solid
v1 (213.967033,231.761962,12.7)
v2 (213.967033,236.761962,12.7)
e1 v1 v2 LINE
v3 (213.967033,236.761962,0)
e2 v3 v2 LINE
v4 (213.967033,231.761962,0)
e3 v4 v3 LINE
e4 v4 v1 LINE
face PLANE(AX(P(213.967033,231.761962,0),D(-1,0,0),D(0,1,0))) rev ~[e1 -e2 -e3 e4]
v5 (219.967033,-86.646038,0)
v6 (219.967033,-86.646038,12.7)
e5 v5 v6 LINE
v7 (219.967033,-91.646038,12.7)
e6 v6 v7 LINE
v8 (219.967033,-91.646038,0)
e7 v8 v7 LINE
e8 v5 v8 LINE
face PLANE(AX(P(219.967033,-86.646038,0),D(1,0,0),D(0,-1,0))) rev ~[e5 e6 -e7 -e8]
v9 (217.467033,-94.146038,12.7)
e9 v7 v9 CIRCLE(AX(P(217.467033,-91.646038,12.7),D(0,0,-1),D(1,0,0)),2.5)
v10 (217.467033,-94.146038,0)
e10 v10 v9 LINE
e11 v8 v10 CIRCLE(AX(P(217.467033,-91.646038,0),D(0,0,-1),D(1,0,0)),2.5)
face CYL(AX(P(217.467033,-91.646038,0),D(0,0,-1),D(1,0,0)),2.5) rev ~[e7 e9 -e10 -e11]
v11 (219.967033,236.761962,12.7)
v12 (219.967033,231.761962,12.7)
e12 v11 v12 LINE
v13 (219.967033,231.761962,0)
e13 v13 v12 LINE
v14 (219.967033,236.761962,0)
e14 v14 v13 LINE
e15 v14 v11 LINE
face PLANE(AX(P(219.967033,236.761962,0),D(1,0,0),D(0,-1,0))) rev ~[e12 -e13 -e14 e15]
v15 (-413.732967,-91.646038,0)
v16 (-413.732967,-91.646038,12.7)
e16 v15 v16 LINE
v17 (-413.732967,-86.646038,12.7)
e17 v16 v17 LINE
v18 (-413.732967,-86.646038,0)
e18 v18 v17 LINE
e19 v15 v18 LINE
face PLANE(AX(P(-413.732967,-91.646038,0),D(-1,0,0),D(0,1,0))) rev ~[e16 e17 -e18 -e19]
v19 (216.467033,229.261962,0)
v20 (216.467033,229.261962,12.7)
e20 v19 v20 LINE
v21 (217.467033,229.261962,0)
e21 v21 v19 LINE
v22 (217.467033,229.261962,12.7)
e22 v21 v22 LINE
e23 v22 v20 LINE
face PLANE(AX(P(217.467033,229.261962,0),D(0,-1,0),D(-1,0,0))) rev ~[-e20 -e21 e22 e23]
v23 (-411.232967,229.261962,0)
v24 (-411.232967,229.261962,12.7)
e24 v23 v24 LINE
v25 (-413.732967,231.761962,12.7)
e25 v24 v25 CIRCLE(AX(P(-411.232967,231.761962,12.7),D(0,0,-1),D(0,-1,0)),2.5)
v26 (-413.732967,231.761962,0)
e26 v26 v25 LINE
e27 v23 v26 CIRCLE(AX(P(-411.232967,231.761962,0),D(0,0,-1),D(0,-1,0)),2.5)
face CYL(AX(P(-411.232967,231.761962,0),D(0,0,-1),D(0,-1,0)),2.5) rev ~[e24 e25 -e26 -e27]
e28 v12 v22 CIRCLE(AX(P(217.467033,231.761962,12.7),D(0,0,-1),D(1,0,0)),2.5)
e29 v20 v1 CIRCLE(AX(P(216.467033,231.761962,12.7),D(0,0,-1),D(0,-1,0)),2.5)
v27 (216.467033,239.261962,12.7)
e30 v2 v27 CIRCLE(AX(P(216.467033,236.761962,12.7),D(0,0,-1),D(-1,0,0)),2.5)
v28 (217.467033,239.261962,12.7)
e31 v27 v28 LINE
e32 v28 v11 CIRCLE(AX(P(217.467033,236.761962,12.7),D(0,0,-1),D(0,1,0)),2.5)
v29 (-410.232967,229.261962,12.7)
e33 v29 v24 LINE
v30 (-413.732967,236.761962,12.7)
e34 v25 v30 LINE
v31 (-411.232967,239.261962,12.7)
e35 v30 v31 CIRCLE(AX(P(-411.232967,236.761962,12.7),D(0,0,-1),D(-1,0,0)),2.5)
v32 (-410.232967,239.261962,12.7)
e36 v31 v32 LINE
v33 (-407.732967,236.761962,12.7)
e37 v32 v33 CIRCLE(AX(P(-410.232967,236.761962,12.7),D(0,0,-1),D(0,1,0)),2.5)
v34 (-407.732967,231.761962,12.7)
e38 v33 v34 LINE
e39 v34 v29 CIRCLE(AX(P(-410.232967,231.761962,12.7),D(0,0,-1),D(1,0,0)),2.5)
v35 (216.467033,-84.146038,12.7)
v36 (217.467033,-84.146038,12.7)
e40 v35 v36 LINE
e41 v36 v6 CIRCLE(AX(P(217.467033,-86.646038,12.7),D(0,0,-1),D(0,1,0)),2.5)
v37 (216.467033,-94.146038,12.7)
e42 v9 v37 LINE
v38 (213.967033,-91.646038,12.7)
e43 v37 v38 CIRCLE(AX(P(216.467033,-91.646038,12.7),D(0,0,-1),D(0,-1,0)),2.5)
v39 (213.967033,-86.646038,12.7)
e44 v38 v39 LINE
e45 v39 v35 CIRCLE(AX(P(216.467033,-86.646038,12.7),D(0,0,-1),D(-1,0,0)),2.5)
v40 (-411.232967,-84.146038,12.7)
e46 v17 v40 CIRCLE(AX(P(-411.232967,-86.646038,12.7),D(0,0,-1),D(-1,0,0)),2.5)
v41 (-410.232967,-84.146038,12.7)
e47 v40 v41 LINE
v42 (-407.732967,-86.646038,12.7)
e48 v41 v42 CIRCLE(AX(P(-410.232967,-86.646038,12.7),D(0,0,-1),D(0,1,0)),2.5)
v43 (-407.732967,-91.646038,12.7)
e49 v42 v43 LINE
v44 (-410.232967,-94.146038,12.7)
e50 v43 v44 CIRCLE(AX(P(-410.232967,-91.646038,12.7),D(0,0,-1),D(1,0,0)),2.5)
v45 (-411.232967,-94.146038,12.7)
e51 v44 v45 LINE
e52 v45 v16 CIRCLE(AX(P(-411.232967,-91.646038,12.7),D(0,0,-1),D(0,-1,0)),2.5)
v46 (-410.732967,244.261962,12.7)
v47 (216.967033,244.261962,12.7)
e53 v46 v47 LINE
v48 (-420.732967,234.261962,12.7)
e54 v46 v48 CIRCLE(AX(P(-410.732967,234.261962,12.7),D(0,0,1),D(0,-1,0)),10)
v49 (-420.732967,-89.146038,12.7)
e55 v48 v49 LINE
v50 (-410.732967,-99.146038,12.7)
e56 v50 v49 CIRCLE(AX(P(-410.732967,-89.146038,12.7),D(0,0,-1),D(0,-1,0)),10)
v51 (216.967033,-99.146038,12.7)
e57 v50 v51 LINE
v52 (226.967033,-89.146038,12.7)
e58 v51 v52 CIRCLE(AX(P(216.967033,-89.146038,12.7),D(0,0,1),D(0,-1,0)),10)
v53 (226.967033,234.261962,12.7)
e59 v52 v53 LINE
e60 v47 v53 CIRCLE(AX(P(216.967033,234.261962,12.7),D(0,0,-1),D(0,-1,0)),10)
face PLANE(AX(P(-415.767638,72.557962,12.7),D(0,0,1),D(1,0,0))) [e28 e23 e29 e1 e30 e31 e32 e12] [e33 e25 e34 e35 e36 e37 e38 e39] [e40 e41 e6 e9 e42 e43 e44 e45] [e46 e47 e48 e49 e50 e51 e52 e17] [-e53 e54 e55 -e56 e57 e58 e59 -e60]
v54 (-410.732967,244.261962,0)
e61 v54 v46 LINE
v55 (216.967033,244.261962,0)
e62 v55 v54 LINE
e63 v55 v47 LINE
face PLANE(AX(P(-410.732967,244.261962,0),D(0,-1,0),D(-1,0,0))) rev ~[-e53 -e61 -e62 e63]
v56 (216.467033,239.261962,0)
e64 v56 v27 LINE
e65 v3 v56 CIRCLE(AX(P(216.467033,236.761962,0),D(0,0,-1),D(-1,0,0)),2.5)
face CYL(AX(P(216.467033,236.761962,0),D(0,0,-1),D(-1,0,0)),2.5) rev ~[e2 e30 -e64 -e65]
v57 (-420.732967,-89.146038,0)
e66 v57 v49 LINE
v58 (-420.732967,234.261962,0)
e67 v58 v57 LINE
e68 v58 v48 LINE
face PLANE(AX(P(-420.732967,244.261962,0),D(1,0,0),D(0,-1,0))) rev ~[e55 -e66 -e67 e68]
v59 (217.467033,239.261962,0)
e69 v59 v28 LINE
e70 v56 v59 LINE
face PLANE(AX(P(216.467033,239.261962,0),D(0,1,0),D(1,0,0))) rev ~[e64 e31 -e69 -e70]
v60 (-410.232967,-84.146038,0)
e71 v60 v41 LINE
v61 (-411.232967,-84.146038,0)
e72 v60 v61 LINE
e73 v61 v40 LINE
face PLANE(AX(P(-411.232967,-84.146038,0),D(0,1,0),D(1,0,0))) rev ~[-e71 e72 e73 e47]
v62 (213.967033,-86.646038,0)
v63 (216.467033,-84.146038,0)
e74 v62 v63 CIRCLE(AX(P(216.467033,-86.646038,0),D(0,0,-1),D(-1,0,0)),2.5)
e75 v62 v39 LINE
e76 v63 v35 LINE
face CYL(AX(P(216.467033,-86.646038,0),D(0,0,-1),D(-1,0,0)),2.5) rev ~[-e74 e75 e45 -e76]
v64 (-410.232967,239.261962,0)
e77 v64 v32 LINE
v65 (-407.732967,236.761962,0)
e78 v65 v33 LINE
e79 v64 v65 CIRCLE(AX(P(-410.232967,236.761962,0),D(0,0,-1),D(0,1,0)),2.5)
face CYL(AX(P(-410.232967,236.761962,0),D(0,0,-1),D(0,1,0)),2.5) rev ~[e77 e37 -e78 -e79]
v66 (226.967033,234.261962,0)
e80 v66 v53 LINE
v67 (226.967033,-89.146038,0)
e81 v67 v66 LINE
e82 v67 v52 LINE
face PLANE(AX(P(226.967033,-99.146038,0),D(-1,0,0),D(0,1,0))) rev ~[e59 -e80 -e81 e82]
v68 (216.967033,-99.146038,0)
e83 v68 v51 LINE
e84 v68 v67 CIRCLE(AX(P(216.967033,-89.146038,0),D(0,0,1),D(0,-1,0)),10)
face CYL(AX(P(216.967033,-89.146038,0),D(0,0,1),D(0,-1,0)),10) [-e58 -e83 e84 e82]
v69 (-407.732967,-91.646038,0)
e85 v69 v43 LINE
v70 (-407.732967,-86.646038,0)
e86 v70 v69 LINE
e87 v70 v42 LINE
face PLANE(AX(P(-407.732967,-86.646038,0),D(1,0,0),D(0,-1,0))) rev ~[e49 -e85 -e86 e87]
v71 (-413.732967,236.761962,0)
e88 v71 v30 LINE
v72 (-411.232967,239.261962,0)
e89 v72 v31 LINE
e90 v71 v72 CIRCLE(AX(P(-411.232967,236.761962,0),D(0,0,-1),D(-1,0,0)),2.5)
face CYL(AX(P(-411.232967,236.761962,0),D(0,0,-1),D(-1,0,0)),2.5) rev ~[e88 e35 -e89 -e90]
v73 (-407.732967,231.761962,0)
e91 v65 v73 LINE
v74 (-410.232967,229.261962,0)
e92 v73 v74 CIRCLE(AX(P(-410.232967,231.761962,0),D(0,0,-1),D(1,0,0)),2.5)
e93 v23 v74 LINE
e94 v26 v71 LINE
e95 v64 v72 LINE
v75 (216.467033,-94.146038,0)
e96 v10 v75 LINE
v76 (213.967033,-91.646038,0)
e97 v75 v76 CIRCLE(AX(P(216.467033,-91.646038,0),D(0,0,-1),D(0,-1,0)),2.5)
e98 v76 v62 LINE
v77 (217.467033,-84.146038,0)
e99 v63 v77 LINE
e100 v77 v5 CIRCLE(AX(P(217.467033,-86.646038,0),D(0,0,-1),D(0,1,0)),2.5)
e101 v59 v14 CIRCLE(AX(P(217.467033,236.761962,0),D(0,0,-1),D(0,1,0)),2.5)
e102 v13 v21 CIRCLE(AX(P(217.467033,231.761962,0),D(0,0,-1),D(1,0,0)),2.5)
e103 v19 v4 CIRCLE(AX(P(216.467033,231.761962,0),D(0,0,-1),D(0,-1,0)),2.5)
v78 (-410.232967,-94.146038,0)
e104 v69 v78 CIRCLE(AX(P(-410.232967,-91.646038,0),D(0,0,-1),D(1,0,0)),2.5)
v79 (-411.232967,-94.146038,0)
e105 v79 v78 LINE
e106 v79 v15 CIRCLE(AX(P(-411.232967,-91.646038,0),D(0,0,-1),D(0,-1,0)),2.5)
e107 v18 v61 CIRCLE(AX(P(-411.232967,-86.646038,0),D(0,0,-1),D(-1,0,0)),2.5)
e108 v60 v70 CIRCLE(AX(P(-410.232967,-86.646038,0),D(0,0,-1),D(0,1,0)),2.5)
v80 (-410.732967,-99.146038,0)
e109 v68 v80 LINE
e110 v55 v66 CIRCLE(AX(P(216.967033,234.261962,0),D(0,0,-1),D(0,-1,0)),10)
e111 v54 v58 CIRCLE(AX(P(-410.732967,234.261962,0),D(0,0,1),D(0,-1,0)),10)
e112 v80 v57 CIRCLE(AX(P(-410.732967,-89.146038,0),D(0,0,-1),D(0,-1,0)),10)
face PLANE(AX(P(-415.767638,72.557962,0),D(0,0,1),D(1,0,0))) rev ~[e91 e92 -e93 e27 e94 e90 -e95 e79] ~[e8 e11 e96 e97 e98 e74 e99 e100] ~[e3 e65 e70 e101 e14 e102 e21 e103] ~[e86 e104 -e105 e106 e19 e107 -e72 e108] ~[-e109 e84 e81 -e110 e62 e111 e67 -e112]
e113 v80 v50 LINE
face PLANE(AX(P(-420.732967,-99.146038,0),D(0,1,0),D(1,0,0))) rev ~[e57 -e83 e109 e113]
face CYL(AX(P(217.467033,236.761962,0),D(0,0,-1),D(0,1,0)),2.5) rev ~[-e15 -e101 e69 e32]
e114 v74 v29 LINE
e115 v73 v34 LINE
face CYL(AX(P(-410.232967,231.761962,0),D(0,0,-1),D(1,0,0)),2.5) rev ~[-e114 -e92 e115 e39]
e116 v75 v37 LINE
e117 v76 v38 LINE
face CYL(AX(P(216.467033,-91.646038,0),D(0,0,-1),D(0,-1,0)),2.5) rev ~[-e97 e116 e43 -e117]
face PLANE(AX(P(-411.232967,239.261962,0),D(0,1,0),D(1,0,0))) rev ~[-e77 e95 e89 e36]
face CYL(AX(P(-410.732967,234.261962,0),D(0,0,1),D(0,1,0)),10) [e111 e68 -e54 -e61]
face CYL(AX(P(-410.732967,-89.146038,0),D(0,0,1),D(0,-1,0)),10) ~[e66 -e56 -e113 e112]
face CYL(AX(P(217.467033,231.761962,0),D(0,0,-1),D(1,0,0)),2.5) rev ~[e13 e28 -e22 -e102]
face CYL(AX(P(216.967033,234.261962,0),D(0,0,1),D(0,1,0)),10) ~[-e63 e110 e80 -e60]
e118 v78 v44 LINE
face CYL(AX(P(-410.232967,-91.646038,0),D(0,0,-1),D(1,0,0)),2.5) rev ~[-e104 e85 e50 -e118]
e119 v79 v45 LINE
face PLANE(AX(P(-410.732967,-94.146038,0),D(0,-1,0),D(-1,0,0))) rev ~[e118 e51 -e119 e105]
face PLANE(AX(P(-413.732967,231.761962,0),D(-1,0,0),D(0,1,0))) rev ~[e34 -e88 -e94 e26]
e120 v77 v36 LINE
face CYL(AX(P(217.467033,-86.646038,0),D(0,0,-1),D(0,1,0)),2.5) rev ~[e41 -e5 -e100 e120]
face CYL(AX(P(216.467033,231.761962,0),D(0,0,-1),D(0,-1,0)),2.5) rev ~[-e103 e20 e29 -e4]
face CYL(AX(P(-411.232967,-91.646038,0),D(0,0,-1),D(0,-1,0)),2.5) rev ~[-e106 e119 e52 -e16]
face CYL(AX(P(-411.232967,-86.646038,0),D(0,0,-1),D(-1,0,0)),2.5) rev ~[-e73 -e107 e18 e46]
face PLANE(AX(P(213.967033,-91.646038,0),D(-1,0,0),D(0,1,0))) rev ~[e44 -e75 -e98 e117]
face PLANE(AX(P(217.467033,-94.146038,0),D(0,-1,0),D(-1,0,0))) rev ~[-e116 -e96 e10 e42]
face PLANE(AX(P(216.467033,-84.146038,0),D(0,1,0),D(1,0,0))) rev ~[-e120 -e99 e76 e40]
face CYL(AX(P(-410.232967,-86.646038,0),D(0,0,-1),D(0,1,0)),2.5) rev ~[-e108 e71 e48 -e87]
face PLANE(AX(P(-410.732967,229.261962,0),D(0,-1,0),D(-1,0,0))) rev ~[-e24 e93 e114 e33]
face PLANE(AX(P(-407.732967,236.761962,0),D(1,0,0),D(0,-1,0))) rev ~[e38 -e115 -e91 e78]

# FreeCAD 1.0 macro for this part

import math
import FreeCAD as App
import Part
import Sketcher
Q = App.Units.Quantity


def edges_at(feature, points):
    """Names of the edges that pass closest to the given points."""
    edges = feature.Shape.Edges
    near = lambda p: min(range(len(edges)), key=lambda i: edges[i].distToShape(Part.Vertex(*p))[0])
    return sorted({f"Edge{near(p) + 1}" for p in points})


def add_polygon(sketch, points):
    """Adds a closed chain of lines whose ends are joined by coincident constraints."""
    first, n = sketch.GeometryCount, len(points)
    for a, b in zip(points, points[1:] + points[:1]):
        sketch.addGeometry(Part.LineSegment(App.Vector(*a, 0), App.Vector(*b, 0)), False)
    for i in range(n):
        sketch.addConstraint(Sketcher.Constraint("Coincident", first + i, 2, first + (i + 1) % n, 1))

doc = App.newDocument("Part")
body = doc.addObject("PartDesign::Body", "Body")

sketch1 = doc.addObject("Sketcher::SketchObject", "Sketch")
body.addObject(sketch1)
sketch1.AttachmentSupport = (doc.XY_Plane, [""])
sketch1.MapMode = "FlatFace"
add_polygon(sketch1, [(227, 244.3), (-420.7, 244.3), (-420.7, -99.1), (227, -99.1)])
sketch1.addGeometry(Part.ArcOfCircle(Part.Circle(App.Vector(-410.2, 236.8, 0), App.Vector(0, 0, 1), 2.5), math.radians(0), math.radians(90)), False)
sketch1.addGeometry(Part.LineSegment(App.Vector(-407.7, 236.8, 0), App.Vector(-407.7, 231.8, 0)), False)
sketch1.addGeometry(Part.ArcOfCircle(Part.Circle(App.Vector(-410.2, 231.8, 0), App.Vector(0, 0, 1), 2.5), math.radians(-90), math.radians(0)), False)
sketch1.addGeometry(Part.LineSegment(App.Vector(-410.2, 229.3, 0), App.Vector(-411.2, 229.3, 0)), False)
sketch1.addGeometry(Part.ArcOfCircle(Part.Circle(App.Vector(-411.2, 231.8, 0), App.Vector(0, 0, 1), 2.5), math.radians(180), math.radians(270)), False)
sketch1.addGeometry(Part.LineSegment(App.Vector(-413.7, 231.8, 0), App.Vector(-413.7, 236.8, 0)), False)
sketch1.addGeometry(Part.ArcOfCircle(Part.Circle(App.Vector(-411.2, 236.8, 0), App.Vector(0, 0, 1), 2.5), math.radians(90), math.radians(180)), False)
sketch1.addGeometry(Part.LineSegment(App.Vector(-411.2, 239.3, 0), App.Vector(-410.2, 239.3, 0)), False)
sketch1.addGeometry(Part.LineSegment(App.Vector(-410.2, -94.1, 0), App.Vector(-411.2, -94.1, 0)), False)
sketch1.addGeometry(Part.ArcOfCircle(Part.Circle(App.Vector(-411.2, -91.6, 0), App.Vector(0, 0, 1), 2.5), math.radians(180), math.radians(270)), False)
sketch1.addGeometry(Part.LineSegment(App.Vector(-413.7, -91.6, 0), App.Vector(-413.7, -86.6, 0)), False)
sketch1.addGeometry(Part.ArcOfCircle(Part.Circle(App.Vector(-411.2, -86.6, 0), App.Vector(0, 0, 1), 2.5), math.radians(90), math.radians(180)), False)
sketch1.addGeometry(Part.LineSegment(App.Vector(-411.2, -84.1, 0), App.Vector(-410.2, -84.1, 0)), False)
sketch1.addGeometry(Part.ArcOfCircle(Part.Circle(App.Vector(-410.2, -86.6, 0), App.Vector(0, 0, 1), 2.5), math.radians(0), math.radians(90)), False)
sketch1.addGeometry(Part.LineSegment(App.Vector(-407.7, -86.6, 0), App.Vector(-407.7, -91.6, 0)), False)
sketch1.addGeometry(Part.ArcOfCircle(Part.Circle(App.Vector(-410.2, -91.6, 0), App.Vector(0, 0, 1), 2.5), math.radians(-90), math.radians(0)), False)
sketch1.addGeometry(Part.LineSegment(App.Vector(220, -86.6, 0), App.Vector(220, -91.6, 0)), False)
sketch1.addGeometry(Part.ArcOfCircle(Part.Circle(App.Vector(217.5, -91.6, 0), App.Vector(0, 0, 1), 2.5), math.radians(-90), math.radians(0)), False)
sketch1.addGeometry(Part.LineSegment(App.Vector(217.5, -94.1, 0), App.Vector(216.5, -94.1, 0)), False)
sketch1.addGeometry(Part.ArcOfCircle(Part.Circle(App.Vector(216.5, -91.6, 0), App.Vector(0, 0, 1), 2.5), math.radians(180), math.radians(270)), False)
sketch1.addGeometry(Part.LineSegment(App.Vector(214, -91.6, 0), App.Vector(214, -86.6, 0)), False)
sketch1.addGeometry(Part.ArcOfCircle(Part.Circle(App.Vector(216.5, -86.6, 0), App.Vector(0, 0, 1), 2.5), math.radians(90), math.radians(180)), False)
sketch1.addGeometry(Part.LineSegment(App.Vector(216.5, -84.1, 0), App.Vector(217.5, -84.1, 0)), False)
sketch1.addGeometry(Part.ArcOfCircle(Part.Circle(App.Vector(217.5, -86.6, 0), App.Vector(0, 0, 1), 2.5), math.radians(0), math.radians(90)), False)
sketch1.addGeometry(Part.LineSegment(App.Vector(220, 236.8, 0), App.Vector(220, 231.8, 0)), False)
sketch1.addGeometry(Part.ArcOfCircle(Part.Circle(App.Vector(217.5, 231.8, 0), App.Vector(0, 0, 1), 2.5), math.radians(-90), math.radians(0)), False)
sketch1.addGeometry(Part.LineSegment(App.Vector(217.5, 229.3, 0), App.Vector(216.5, 229.3, 0)), False)
sketch1.addGeometry(Part.ArcOfCircle(Part.Circle(App.Vector(216.5, 231.8, 0), App.Vector(0, 0, 1), 2.5), math.radians(180), math.radians(270)), False)
sketch1.addGeometry(Part.LineSegment(App.Vector(214, 231.8, 0), App.Vector(214, 236.8, 0)), False)
sketch1.addGeometry(Part.ArcOfCircle(Part.Circle(App.Vector(216.5, 236.8, 0), App.Vector(0, 0, 1), 2.5), math.radians(90), math.radians(180)), False)
sketch1.addGeometry(Part.LineSegment(App.Vector(216.5, 239.3, 0), App.Vector(217.5, 239.3, 0)), False)
sketch1.addGeometry(Part.ArcOfCircle(Part.Circle(App.Vector(217.5, 236.8, 0), App.Vector(0, 0, 1), 2.5), math.radians(0), math.radians(90)), False)
sketch1.addConstraint(Sketcher.Constraint("Tangent", 4, 1, 5, 1))
sketch1.addConstraint(Sketcher.Constraint("Tangent", 5, 2, 6, 2))
sketch1.addConstraint(Sketcher.Constraint("Tangent", 6, 1, 7, 1))
sketch1.addConstraint(Sketcher.Constraint("Tangent", 7, 2, 8, 2))
sketch1.addConstraint(Sketcher.Constraint("Tangent", 8, 1, 9, 1))
sketch1.addConstraint(Sketcher.Constraint("Tangent", 9, 2, 10, 2))
sketch1.addConstraint(Sketcher.Constraint("Tangent", 10, 1, 11, 1))
sketch1.addConstraint(Sketcher.Constraint("Tangent", 11, 2, 4, 2))
sketch1.addConstraint(Sketcher.Constraint("Tangent", 12, 2, 13, 2))
sketch1.addConstraint(Sketcher.Constraint("Tangent", 13, 1, 14, 1))
sketch1.addConstraint(Sketcher.Constraint("Tangent", 14, 2, 15, 2))
sketch1.addConstraint(Sketcher.Constraint("Tangent", 15, 1, 16, 1))
sketch1.addConstraint(Sketcher.Constraint("Tangent", 16, 2, 17, 2))
sketch1.addConstraint(Sketcher.Constraint("Tangent", 17, 1, 18, 1))
sketch1.addConstraint(Sketcher.Constraint("Tangent", 18, 2, 19, 2))
sketch1.addConstraint(Sketcher.Constraint("Tangent", 19, 1, 12, 1))
sketch1.addConstraint(Sketcher.Constraint("Tangent", 20, 2, 21, 2))
sketch1.addConstraint(Sketcher.Constraint("Tangent", 21, 1, 22, 1))
sketch1.addConstraint(Sketcher.Constraint("Tangent", 22, 2, 23, 2))
sketch1.addConstraint(Sketcher.Constraint("Tangent", 23, 1, 24, 1))
sketch1.addConstraint(Sketcher.Constraint("Tangent", 24, 2, 25, 2))
sketch1.addConstraint(Sketcher.Constraint("Tangent", 25, 1, 26, 1))
sketch1.addConstraint(Sketcher.Constraint("Tangent", 26, 2, 27, 2))
sketch1.addConstraint(Sketcher.Constraint("Tangent", 27, 1, 20, 1))
sketch1.addConstraint(Sketcher.Constraint("Tangent", 28, 2, 29, 2))
sketch1.addConstraint(Sketcher.Constraint("Tangent", 29, 1, 30, 1))
sketch1.addConstraint(Sketcher.Constraint("Tangent", 30, 2, 31, 2))
sketch1.addConstraint(Sketcher.Constraint("Tangent", 31, 1, 32, 1))
sketch1.addConstraint(Sketcher.Constraint("Tangent", 32, 2, 33, 2))
sketch1.addConstraint(Sketcher.Constraint("Tangent", 33, 1, 34, 1))
sketch1.addConstraint(Sketcher.Constraint("Tangent", 34, 2, 35, 2))
sketch1.addConstraint(Sketcher.Constraint("Tangent", 35, 1, 28, 1))
sketch1.addConstraint(Sketcher.Constraint("Horizontal", 0))
sketch1.addConstraint(Sketcher.Constraint("Vertical", 1))
sketch1.addConstraint(Sketcher.Constraint("Horizontal", 2))
sketch1.addConstraint(Sketcher.Constraint("Vertical", 3))
sketch1.addConstraint(Sketcher.Constraint("Vertical", 5))
sketch1.addConstraint(Sketcher.Constraint("Horizontal", 7))
sketch1.addConstraint(Sketcher.Constraint("Vertical", 9))
sketch1.addConstraint(Sketcher.Constraint("Horizontal", 11))
sketch1.addConstraint(Sketcher.Constraint("Horizontal", 12))
sketch1.addConstraint(Sketcher.Constraint("Vertical", 14))
sketch1.addConstraint(Sketcher.Constraint("Horizontal", 16))
sketch1.addConstraint(Sketcher.Constraint("Vertical", 18))
sketch1.addConstraint(Sketcher.Constraint("Vertical", 20))
sketch1.addConstraint(Sketcher.Constraint("Horizontal", 22))
sketch1.addConstraint(Sketcher.Constraint("Vertical", 24))
sketch1.addConstraint(Sketcher.Constraint("Horizontal", 26))
sketch1.addConstraint(Sketcher.Constraint("Vertical", 28))
sketch1.addConstraint(Sketcher.Constraint("Horizontal", 30))
sketch1.addConstraint(Sketcher.Constraint("Vertical", 32))
sketch1.addConstraint(Sketcher.Constraint("Horizontal", 34))
sketch1.addConstraint(Sketcher.Constraint("Equal", 4, 6))
sketch1.addConstraint(Sketcher.Constraint("Equal", 6, 8))
sketch1.addConstraint(Sketcher.Constraint("Equal", 8, 10))
sketch1.addConstraint(Sketcher.Constraint("Equal", 10, 13))
sketch1.addConstraint(Sketcher.Constraint("Equal", 13, 15))
sketch1.addConstraint(Sketcher.Constraint("Equal", 15, 17))
sketch1.addConstraint(Sketcher.Constraint("Equal", 17, 19))
sketch1.addConstraint(Sketcher.Constraint("Equal", 19, 21))
sketch1.addConstraint(Sketcher.Constraint("Equal", 21, 23))
sketch1.addConstraint(Sketcher.Constraint("Equal", 23, 25))
sketch1.addConstraint(Sketcher.Constraint("Equal", 25, 27))
sketch1.addConstraint(Sketcher.Constraint("Equal", 27, 29))
sketch1.addConstraint(Sketcher.Constraint("Equal", 29, 31))
sketch1.addConstraint(Sketcher.Constraint("Equal", 31, 33))
sketch1.addConstraint(Sketcher.Constraint("Equal", 33, 35))
sketch1.addConstraint(Sketcher.Constraint("Horizontal", 19, 3, 21, 3))
sketch1.addConstraint(Sketcher.Constraint("Horizontal", 17, 3, 25, 3))
sketch1.addConstraint(Sketcher.Constraint("Horizontal", 8, 3, 29, 3))
sketch1.addConstraint(Sketcher.Constraint("Horizontal", 10, 3, 33, 3))
sketch1.addConstraint(Sketcher.Constraint("Vertical", 10, 3, 13, 3))
sketch1.addConstraint(Sketcher.Constraint("Vertical", 6, 3, 17, 3))
sketch1.addConstraint(Sketcher.Constraint("Vertical", 27, 3, 29, 3))
sketch1.addConstraint(Sketcher.Constraint("Vertical", 25, 3, 31, 3))
sketch1.addConstraint(Sketcher.Constraint("Equal", 16, 22))
sketch1.addConstraint(Sketcher.Constraint("Equal", 9, 14))
sketch1.addConstraint(Sketcher.Constraint("Radius", 4, Q("2.5 mm")))
sketch1.addConstraint(Sketcher.Constraint("DistanceX", 7, 2, 7, 1, Q("1 mm")))
sketch1.addConstraint(Sketcher.Constraint("DistanceY", 5, 2, 5, 1, Q("5 mm")))
sketch1.addConstraint(Sketcher.Constraint("DistanceX", 0, 2, 0, 1, Q("647.7 mm")))
sketch1.addConstraint(Sketcher.Constraint("DistanceX", 0, 2, 4, 1, Q("13 mm")))
sketch1.addConstraint(Sketcher.Constraint("DistanceY", 1, 2, 12, 2, Q("5 mm")))
sketch1.addConstraint(Sketcher.Constraint("DistanceX", 20, 2, 2, 2, Q("7 mm")))
sketch1.addConstraint(Sketcher.Constraint("DistanceY", 10, 3, 0, 2, Q("7.5 mm")))
sketch1.addConstraint(Sketcher.Constraint("DistanceY", 1, 2, 1, 1, Q("343.408 mm")))
sketch1.addConstraint(Sketcher.Constraint("DistanceY", -1, 1, 4, 3, Q("236.761962 mm")))
sketch1.addConstraint(Sketcher.Constraint("DistanceX", 4, 3, -1, 1, Q("410.232967 mm")))
pad1 = doc.addObject("PartDesign::Pad", "Pad")
body.addObject(pad1)
pad1.Profile = sketch1
pad1.Length = 12.7
doc.recompute()

fillet = doc.addObject("PartDesign::Fillet", "Fillet")
body.addObject(fillet)
fillet.Base = (pad1, edges_at(pad1, [
    (-420.733, 244.262, 6.35),
    (226.967, 244.262, 6.35),
    (226.967, -99.146, 6.35),
    (-420.733, -99.146, 6.35),
]))
fillet.Radius = 10

doc.recompute()
